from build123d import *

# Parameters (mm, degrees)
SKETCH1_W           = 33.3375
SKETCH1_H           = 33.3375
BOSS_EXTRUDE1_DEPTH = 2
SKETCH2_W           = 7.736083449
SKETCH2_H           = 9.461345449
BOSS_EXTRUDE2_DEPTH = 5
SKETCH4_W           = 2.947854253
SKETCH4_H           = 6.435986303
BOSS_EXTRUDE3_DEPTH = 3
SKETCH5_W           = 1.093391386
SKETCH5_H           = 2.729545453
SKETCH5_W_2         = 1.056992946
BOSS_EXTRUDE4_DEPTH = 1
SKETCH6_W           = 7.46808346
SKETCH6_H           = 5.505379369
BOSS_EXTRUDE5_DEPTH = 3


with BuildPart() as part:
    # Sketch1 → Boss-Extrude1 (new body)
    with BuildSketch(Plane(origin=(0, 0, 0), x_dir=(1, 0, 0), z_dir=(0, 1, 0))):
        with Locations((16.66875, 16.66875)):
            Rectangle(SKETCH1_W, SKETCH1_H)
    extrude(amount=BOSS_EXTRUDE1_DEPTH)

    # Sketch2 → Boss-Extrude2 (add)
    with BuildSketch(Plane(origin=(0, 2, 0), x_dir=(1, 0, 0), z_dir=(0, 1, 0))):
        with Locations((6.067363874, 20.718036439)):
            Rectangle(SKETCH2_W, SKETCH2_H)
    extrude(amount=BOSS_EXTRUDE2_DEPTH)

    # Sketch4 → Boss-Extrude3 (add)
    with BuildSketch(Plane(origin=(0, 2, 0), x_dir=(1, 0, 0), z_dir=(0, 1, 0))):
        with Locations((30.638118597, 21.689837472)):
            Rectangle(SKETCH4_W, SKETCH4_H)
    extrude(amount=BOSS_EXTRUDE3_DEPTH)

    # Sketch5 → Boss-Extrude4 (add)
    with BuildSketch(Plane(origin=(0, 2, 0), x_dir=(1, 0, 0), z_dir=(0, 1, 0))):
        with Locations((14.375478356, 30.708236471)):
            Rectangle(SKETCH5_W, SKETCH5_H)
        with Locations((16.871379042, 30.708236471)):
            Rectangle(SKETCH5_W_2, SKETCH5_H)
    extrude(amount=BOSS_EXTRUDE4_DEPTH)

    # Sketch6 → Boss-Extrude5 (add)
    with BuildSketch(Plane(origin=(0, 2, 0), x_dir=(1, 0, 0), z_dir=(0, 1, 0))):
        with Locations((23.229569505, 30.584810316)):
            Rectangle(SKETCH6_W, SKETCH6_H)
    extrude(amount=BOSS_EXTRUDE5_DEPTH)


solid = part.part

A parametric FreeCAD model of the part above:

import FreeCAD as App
import Part
import Sketcher
from FreeCAD import Vector

doc = App.newDocument("Part")
body = doc.addObject("PartDesign::Body", "Body")

sketch1 = body.newObject("Sketcher::SketchObject", "Sketch")
sketch1.AttachmentSupport = (doc.getObject("XZ_Plane"), [""])
sketch1.MapMode = "FlatFace"
sketch1.addGeometry([
    Part.LineSegment(Vector(0, -33, 0), Vector(0, 0, 0)),
    Part.LineSegment(Vector(0, 0, 0), Vector(33, 0, 0)),
    Part.LineSegment(Vector(33, 0, 0), Vector(33, -33, 0)),
    Part.LineSegment(Vector(33, -33, 0), Vector(0, -33, 0)),
], False)
sketch1.addConstraint([
    Sketcher.Constraint("Coincident", 0, 2, 1, 1),
    Sketcher.Constraint("Coincident", 1, 2, 2, 1),
    Sketcher.Constraint("Coincident", 2, 2, 3, 1),
    Sketcher.Constraint("Coincident", 3, 2, 0, 1),
    Sketcher.Constraint("Vertical", 0),
    Sketcher.Constraint("Horizontal", 1),
    Sketcher.Constraint("Vertical", 2),
    Sketcher.Constraint("Horizontal", 3),
    Sketcher.Constraint("Coincident", 0, 2, -1, 1),
    Sketcher.Constraint("Equal", 3, 0),
    Sketcher.Constraint("DistanceX", 1, 1, 1, 2, 33.3375),
])
pad1 = body.newObject("PartDesign::Pad", "Pad")
pad1.Profile = sketch1
pad1.Length = 2
pad1.Reversed = True

sketch2 = body.newObject("Sketcher::SketchObject", "Sketch001")
sketch2.AttachmentSupport = (doc.getObject("XZ_Plane"), [""])
sketch2.MapMode = "FlatFace"
sketch2.AttachmentOffset = App.Placement(Vector(0, 0, -2), App.Rotation())
sketch2.addGeometry([
    Part.LineSegment(Vector(2, -25, 0), Vector(2, -16, 0)),
    Part.LineSegment(Vector(2, -16, 0), Vector(10, -16, 0)),
    Part.LineSegment(Vector(10, -16, 0), Vector(10, -25, 0)),
    Part.LineSegment(Vector(10, -25, 0), Vector(2, -25, 0)),
], False)
sketch2.addConstraint([
    Sketcher.Constraint("Coincident", 0, 2, 1, 1),
    Sketcher.Constraint("Coincident", 1, 2, 2, 1),
    Sketcher.Constraint("Coincident", 2, 2, 3, 1),
    Sketcher.Constraint("Coincident", 3, 2, 0, 1),
    Sketcher.Constraint("Vertical", 0),
    Sketcher.Constraint("Horizontal", 1),
    Sketcher.Constraint("Vertical", 2),
    Sketcher.Constraint("Horizontal", 3),
    Sketcher.Constraint("DistanceX", 1, 1, 1, 2, 7.736083),
    Sketcher.Constraint("DistanceY", 0, 1, 0, 2, 9.461345),
    Sketcher.Constraint("DistanceY", 2, 2, -1, 1, 25.448709),
    Sketcher.Constraint("DistanceX", -1, 1, 0, 2, 2.199322),
])
pad2 = body.newObject("PartDesign::Pad", "Pad001")
pad2.Profile = sketch2
pad2.Length = 5
pad2.Reversed = True

sketch3 = body.newObject("Sketcher::SketchObject", "Sketch002")
sketch3.AttachmentSupport = (doc.getObject("XZ_Plane"), [""])
sketch3.MapMode = "FlatFace"
sketch3.AttachmentOffset = App.Placement(Vector(0, 0, -2), App.Rotation())
sketch3.addGeometry([
    Part.LineSegment(Vector(29.2, -24.9, 0), Vector(29.2, -18.5, 0)),
    Part.LineSegment(Vector(29.2, -18.5, 0), Vector(32.1, -18.5, 0)),
    Part.LineSegment(Vector(32.1, -18.5, 0), Vector(32.1, -24.9, 0)),
    Part.LineSegment(Vector(32.1, -24.9, 0), Vector(29.2, -24.9, 0)),
], False)
sketch3.addConstraint([
    Sketcher.Constraint("Coincident", 0, 2, 1, 1),
    Sketcher.Constraint("Coincident", 1, 2, 2, 1),
    Sketcher.Constraint("Coincident", 2, 2, 3, 1),
    Sketcher.Constraint("Coincident", 3, 2, 0, 1),
    Sketcher.Constraint("Vertical", 0),
    Sketcher.Constraint("Horizontal", 1),
    Sketcher.Constraint("Vertical", 2),
    Sketcher.Constraint("Horizontal", 3),
    Sketcher.Constraint("DistanceX", 1, 1, 1, 2, 2.947854),
    Sketcher.Constraint("DistanceY", 0, 1, 0, 2, 6.435986),
    Sketcher.Constraint("DistanceX", -1, 1, 0, 2, 29.164191),
    Sketcher.Constraint("DistanceY", 2, 2, -1, 1, 24.907831),
])
pad3 = body.newObject("PartDesign::Pad", "Pad002")
pad3.Profile = sketch3
pad3.Length = 3
pad3.Reversed = True

sketch4 = body.newObject("Sketcher::SketchObject", "Sketch003")
sketch4.AttachmentSupport = (doc.getObject("XZ_Plane"), [""])
sketch4.MapMode = "FlatFace"
sketch4.AttachmentOffset = App.Placement(Vector(0, 0, -2), App.Rotation())
sketch4.addGeometry([
    Part.LineSegment(Vector(13.8, -32.1, 0), Vector(13.8, -29.3, 0)),
    Part.LineSegment(Vector(13.8, -29.3, 0), Vector(14.9, -29.3, 0)),
    Part.LineSegment(Vector(14.9, -29.3, 0), Vector(14.9, -32.1, 0)),
    Part.LineSegment(Vector(14.9, -32.1, 0), Vector(13.8, -32.1, 0)),
    Part.LineSegment(Vector(16.3, -32.1, 0), Vector(16.3, -29.3, 0)),
    Part.LineSegment(Vector(16.3, -29.3, 0), Vector(17.4, -29.3, 0)),
    Part.LineSegment(Vector(17.4, -29.3, 0), Vector(17.4, -32.1, 0)),
    Part.LineSegment(Vector(17.4, -32.1, 0), Vector(16.3, -32.1, 0)),
], False)
sketch4.addConstraint([
    Sketcher.Constraint("Coincident", 0, 2, 1, 1),
    Sketcher.Constraint("Coincident", 1, 2, 2, 1),
    Sketcher.Constraint("Coincident", 2, 2, 3, 1),
    Sketcher.Constraint("Coincident", 3, 2, 0, 1),
    Sketcher.Constraint("Coincident", 4, 2, 5, 1),
    Sketcher.Constraint("Coincident", 5, 2, 6, 1),
    Sketcher.Constraint("Coincident", 6, 2, 7, 1),
    Sketcher.Constraint("Coincident", 7, 2, 4, 1),
    Sketcher.Constraint("Vertical", 0),
    Sketcher.Constraint("Horizontal", 1),
    Sketcher.Constraint("Vertical", 2),
    Sketcher.Constraint("Horizontal", 3),
    Sketcher.Constraint("Vertical", 4),
    Sketcher.Constraint("Horizontal", 5),
    Sketcher.Constraint("Vertical", 6),
    Sketcher.Constraint("Horizontal", 7),
    Sketcher.Constraint("Horizontal", 1, 2, 4, 2),
    Sketcher.Constraint("Horizontal", 3, 2, 6, 2),
    Sketcher.Constraint("DistanceX", 1, 1, 1, 2, 1.093391),
    Sketcher.Constraint("DistanceX", 0, 2, 4, 2, 2.5141),
    Sketcher.Constraint("DistanceX", 1, 2, 5, 2, 2.477701),
    Sketcher.Constraint("DistanceY", 0, 1, 0, 2, 2.729545),
    Sketcher.Constraint("DistanceY", 2, 2, -1, 1, 32.073009),
    Sketcher.Constraint("DistanceX", -1, 1, 0, 2, 13.828783),
])
pad4 = body.newObject("PartDesign::Pad", "Pad003")
pad4.Profile = sketch4
pad4.Length = 1
pad4.Reversed = True

sketch5 = body.newObject("Sketcher::SketchObject", "Sketch004")
sketch5.AttachmentSupport = (doc.getObject("XZ_Plane"), [""])
sketch5.MapMode = "FlatFace"
sketch5.AttachmentOffset = App.Placement(Vector(0, 0, -2), App.Rotation())
sketch5.addGeometry([
    Part.LineSegment(Vector(19, -33, 0), Vector(19, -28, 0)),
    Part.LineSegment(Vector(19, -28, 0), Vector(27, -28, 0)),
    Part.LineSegment(Vector(27, -28, 0), Vector(27, -33, 0)),
    Part.LineSegment(Vector(27, -33, 0), Vector(19, -33, 0)),
], False)
sketch5.addConstraint([
    Sketcher.Constraint("Coincident", 0, 2, 1, 1),
    Sketcher.Constraint("Coincident", 1, 2, 2, 1),
    Sketcher.Constraint("Coincident", 2, 2, 3, 1),
    Sketcher.Constraint("Coincident", 3, 2, 0, 1),
    Sketcher.Constraint("Vertical", 0),
    Sketcher.Constraint("Horizontal", 1),
    Sketcher.Constraint("Vertical", 2),
    Sketcher.Constraint("Horizontal", 3),
    Sketcher.Constraint("DistanceY", 0, 1, 0, 2, 5.505379),
    Sketcher.Constraint("DistanceY", 2, 2, -1, 1, 33.3375),
    Sketcher.Constraint("DistanceX", 1, 1, 1, 2, 7.468083),
    Sketcher.Constraint("DistanceX", -1, 1, 1, 2, 26.963611),
])
pad5 = body.newObject("PartDesign::Pad", "Pad004")
pad5.Profile = sketch5
pad5.Length = 3
pad5.Reversed = True

doc.recompute()
